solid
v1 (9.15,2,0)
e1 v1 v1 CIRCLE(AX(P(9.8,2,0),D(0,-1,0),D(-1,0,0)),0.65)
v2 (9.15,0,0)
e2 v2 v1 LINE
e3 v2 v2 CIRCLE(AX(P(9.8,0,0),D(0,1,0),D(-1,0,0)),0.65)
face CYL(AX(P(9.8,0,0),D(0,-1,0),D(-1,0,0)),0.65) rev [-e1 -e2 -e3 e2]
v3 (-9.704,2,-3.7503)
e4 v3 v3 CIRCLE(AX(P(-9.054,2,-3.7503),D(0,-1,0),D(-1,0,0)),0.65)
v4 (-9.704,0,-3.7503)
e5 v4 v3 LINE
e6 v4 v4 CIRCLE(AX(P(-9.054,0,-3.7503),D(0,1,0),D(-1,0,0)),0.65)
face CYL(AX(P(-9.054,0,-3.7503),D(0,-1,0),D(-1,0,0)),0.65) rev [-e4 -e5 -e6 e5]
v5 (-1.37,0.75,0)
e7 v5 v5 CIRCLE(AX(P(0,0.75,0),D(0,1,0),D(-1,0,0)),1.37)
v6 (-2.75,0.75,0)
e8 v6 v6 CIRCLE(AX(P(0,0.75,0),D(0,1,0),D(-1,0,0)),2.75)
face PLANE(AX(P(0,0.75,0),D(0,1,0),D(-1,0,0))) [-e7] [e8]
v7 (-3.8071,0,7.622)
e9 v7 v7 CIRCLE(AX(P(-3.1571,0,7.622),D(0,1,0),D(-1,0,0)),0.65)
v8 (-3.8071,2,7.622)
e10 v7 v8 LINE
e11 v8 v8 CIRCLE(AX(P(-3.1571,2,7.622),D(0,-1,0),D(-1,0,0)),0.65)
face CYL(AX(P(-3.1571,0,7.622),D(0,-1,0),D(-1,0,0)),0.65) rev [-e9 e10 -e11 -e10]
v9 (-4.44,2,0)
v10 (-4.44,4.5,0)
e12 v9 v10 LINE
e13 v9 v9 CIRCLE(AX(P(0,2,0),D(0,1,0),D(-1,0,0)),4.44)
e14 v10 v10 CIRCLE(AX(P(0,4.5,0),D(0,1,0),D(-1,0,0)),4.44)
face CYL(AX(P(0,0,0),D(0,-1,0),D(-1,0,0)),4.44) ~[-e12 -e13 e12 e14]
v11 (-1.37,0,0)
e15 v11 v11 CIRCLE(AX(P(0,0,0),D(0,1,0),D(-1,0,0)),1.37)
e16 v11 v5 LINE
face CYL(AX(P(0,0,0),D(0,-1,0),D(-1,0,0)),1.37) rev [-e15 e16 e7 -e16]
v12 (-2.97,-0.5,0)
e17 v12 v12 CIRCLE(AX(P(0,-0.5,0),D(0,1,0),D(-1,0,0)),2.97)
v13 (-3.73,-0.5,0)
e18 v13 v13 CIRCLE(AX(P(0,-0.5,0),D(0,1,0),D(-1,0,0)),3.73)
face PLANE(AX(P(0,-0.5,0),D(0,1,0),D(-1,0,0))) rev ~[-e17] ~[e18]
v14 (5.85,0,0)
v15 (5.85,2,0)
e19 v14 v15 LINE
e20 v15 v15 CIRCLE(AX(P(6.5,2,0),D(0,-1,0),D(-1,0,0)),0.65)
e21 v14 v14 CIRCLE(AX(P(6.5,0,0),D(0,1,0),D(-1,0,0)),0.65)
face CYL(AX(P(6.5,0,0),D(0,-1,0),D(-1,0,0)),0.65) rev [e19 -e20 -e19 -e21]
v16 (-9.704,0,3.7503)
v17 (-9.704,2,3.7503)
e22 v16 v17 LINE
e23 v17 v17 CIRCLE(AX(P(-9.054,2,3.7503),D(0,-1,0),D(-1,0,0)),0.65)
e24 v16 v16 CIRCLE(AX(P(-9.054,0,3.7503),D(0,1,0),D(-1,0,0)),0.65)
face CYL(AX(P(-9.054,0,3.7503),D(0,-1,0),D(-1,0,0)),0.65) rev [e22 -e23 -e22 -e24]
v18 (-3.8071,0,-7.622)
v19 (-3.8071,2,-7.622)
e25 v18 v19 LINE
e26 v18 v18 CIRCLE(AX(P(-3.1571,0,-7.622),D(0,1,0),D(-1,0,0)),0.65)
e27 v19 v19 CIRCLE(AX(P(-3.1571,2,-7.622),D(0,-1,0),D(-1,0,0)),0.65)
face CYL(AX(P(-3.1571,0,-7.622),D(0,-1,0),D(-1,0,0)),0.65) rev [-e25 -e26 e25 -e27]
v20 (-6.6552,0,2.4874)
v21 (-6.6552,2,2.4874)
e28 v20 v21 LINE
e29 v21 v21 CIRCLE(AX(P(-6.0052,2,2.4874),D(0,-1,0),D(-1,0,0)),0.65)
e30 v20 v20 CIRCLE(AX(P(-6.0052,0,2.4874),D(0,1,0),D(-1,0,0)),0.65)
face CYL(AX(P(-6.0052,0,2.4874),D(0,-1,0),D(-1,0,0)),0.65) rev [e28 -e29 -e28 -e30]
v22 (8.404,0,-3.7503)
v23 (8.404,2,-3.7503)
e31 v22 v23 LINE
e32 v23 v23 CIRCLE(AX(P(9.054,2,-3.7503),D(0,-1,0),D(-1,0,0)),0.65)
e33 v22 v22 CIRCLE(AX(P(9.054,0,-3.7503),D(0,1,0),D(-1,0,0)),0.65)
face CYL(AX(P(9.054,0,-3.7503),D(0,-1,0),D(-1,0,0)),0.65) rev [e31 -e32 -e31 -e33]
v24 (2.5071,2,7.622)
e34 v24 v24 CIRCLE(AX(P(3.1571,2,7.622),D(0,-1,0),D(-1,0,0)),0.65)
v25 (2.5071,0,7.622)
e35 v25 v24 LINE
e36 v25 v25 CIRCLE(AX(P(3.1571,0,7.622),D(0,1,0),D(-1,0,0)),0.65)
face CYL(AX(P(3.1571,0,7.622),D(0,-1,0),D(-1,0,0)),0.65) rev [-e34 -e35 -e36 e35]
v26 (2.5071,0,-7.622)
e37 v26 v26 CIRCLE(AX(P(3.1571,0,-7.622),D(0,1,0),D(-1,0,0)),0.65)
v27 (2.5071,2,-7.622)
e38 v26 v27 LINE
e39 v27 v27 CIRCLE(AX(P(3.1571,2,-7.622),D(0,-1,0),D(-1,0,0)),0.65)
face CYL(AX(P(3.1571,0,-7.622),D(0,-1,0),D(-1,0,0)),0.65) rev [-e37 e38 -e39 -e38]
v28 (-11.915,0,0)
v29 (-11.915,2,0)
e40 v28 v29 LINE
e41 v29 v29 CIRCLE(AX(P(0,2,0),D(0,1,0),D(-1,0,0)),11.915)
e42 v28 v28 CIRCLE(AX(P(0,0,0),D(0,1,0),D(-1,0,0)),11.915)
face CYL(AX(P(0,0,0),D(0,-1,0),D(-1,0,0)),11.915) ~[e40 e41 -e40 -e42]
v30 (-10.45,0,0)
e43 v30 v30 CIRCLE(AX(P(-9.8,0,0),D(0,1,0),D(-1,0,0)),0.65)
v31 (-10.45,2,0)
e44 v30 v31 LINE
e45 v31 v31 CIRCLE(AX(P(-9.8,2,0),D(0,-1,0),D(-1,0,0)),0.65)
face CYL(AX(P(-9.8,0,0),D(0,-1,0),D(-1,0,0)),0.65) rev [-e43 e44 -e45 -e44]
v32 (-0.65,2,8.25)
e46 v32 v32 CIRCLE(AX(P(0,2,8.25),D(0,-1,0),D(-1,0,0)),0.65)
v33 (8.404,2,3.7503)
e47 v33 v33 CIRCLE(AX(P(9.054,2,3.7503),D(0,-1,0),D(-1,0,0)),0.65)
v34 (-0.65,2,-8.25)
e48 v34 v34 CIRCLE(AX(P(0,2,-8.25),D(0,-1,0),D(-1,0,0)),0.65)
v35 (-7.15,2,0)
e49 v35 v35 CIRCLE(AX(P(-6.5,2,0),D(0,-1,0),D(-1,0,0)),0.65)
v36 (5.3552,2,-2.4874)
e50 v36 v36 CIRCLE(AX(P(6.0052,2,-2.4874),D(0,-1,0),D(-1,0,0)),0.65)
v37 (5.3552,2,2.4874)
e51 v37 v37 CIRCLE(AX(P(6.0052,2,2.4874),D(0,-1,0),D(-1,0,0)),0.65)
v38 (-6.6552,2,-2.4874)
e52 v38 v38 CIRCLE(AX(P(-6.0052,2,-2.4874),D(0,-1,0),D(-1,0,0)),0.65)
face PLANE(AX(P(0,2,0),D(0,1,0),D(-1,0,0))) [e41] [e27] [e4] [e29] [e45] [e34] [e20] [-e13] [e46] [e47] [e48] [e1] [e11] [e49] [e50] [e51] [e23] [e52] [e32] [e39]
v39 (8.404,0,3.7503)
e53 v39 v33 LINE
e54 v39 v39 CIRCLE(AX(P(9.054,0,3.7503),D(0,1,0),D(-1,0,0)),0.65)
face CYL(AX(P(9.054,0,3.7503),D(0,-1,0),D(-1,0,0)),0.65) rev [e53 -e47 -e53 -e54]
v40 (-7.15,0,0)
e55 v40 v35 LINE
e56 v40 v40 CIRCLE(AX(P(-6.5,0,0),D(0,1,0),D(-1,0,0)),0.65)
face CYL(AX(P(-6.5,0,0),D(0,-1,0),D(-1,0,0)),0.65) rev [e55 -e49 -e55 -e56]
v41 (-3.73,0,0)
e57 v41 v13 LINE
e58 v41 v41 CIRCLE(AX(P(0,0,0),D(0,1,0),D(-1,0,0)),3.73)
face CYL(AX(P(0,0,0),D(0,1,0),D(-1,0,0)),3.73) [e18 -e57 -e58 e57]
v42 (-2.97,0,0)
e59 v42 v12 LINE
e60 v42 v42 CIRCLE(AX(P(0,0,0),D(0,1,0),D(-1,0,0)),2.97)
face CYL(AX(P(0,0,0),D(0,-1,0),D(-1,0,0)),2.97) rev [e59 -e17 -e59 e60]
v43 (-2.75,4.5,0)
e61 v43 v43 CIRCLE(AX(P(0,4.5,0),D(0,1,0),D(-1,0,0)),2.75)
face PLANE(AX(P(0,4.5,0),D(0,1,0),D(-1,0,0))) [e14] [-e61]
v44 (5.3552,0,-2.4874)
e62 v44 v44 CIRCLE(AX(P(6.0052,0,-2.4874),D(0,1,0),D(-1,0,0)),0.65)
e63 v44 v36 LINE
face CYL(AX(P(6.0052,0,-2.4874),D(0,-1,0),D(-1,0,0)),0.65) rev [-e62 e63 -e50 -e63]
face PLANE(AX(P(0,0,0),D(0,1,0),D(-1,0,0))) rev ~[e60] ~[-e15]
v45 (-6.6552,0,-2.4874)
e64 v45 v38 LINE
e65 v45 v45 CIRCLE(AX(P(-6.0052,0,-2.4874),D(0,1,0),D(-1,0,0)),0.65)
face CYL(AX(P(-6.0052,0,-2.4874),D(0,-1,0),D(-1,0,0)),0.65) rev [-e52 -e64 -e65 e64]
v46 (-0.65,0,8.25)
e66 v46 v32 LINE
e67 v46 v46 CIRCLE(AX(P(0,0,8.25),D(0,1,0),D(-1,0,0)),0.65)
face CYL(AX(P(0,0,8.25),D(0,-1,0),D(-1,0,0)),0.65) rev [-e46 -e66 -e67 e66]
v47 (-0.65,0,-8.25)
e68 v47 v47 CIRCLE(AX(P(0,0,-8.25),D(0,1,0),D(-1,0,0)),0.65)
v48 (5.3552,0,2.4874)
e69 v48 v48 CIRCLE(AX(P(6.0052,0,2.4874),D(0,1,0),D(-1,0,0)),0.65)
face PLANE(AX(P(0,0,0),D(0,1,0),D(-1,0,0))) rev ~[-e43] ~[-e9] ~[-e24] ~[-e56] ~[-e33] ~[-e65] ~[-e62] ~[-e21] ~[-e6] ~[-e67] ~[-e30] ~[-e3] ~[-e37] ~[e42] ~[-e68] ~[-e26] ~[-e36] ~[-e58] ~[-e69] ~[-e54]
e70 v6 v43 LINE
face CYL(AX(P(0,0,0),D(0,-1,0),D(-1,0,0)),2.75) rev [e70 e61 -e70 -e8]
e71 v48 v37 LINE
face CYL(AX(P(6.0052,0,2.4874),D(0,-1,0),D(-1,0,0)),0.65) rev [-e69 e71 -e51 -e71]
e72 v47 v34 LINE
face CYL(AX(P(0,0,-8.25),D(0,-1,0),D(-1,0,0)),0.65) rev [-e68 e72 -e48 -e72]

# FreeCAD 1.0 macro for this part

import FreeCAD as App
import Part
import Sketcher

V = App.Vector

doc = App.newDocument("Part")
body = doc.addObject("PartDesign::Body", "Body")

# Sketch on XZ plane
sketch1 = body.newObject("Sketcher::SketchObject", "Sketch")
sketch1.AttachmentSupport = (doc.getObject("XZ_Plane"), [""])
sketch1.MapMode = "FlatFace"
sketch1.addGeometry(Part.Circle(V(0, 0, 0), V(0, 0, 1), 11.9), False)
sketch1.addGeometry(Part.Circle(V(-9.1, 3.8, 0), V(0, 0, 1), 0.7), False)
sketch1.addGeometry(Part.Circle(V(9.1, 3.8, 0), V(0, 0, 1), 0.7), False)
sketch1.addGeometry(Part.Circle(V(9.8, 0, 0), V(0, 0, 1), 0.7), False)
sketch1.addGeometry(Part.Circle(V(9.1, -3.8, 0), V(0, 0, 1), 0.7), False)
sketch1.addGeometry(Part.Circle(V(-9.1, -3.8, 0), V(0, 0, 1), 0.7), False)
sketch1.addGeometry(Part.Circle(V(-9.8, 0, 0), V(0, 0, 1), 0.7), False)
sketch1.addGeometry(Part.Circle(V(0, -8.2, 0), V(0, 0, 1), 0.7), False)
sketch1.addGeometry(Part.Circle(V(-3.2, -7.6, 0), V(0, 0, 1), 0.7), False)
sketch1.addGeometry(Part.Circle(V(-3.2, 7.6, 0), V(0, 0, 1), 0.7), False)
sketch1.addGeometry(Part.Circle(V(0, 8.2, 0), V(0, 0, 1), 0.7), False)
sketch1.addGeometry(Part.Circle(V(3.2, 7.6, 0), V(0, 0, 1), 0.7), False)
sketch1.addGeometry(Part.Circle(V(3.2, -7.6, 0), V(0, 0, 1), 0.7), False)
sketch1.addGeometry(Part.Circle(V(-6.5, 0, 0), V(0, 0, 1), 0.7), False)
sketch1.addGeometry(Part.Circle(V(6, -2.5, 0), V(0, 0, 1), 0.7), False)
sketch1.addGeometry(Part.Circle(V(-6, -2.5, 0), V(0, 0, 1), 0.7), False)
sketch1.addGeometry(Part.Circle(V(-6, 2.5, 0), V(0, 0, 1), 0.7), False)
sketch1.addGeometry(Part.Circle(V(6, 2.5, 0), V(0, 0, 1), 0.7), False)
sketch1.addGeometry(Part.Circle(V(6.5, 0, 0), V(0, 0, 1), 0.7), False)
sketch1.addGeometry(Part.Circle(V(0, 0, 0), V(0, 0, 1), 4.4), False)
sketch1.addConstraint(Sketcher.Constraint("Coincident", 0, 3, -1, 1))
sketch1.addConstraint(Sketcher.Constraint("Coincident", 19, 3, -1, 1))
sketch1.addConstraint(Sketcher.Constraint("Equal", 1, 2))
sketch1.addConstraint(Sketcher.Constraint("Equal", 2, 3))
sketch1.addConstraint(Sketcher.Constraint("Equal", 3, 4))
sketch1.addConstraint(Sketcher.Constraint("Equal", 4, 5))
sketch1.addConstraint(Sketcher.Constraint("Equal", 5, 6))
sketch1.addConstraint(Sketcher.Constraint("Equal", 6, 7))
sketch1.addConstraint(Sketcher.Constraint("Equal", 7, 8))
sketch1.addConstraint(Sketcher.Constraint("Equal", 8, 9))
sketch1.addConstraint(Sketcher.Constraint("Equal", 9, 10))
sketch1.addConstraint(Sketcher.Constraint("Equal", 10, 11))
sketch1.addConstraint(Sketcher.Constraint("Equal", 11, 12))
sketch1.addConstraint(Sketcher.Constraint("Equal", 12, 13))
sketch1.addConstraint(Sketcher.Constraint("Equal", 13, 14))
sketch1.addConstraint(Sketcher.Constraint("Equal", 14, 15))
sketch1.addConstraint(Sketcher.Constraint("Equal", 15, 16))
sketch1.addConstraint(Sketcher.Constraint("Equal", 16, 17))
sketch1.addConstraint(Sketcher.Constraint("Equal", 17, 18))
sketch1.addConstraint(Sketcher.Constraint("Symmetric", 1, 3, 4, 3, -1, 1))
sketch1.addConstraint(Sketcher.Constraint("Symmetric", 2, 3, 5, 3, -1, 1))
sketch1.addConstraint(Sketcher.Constraint("Symmetric", 3, 3, 6, 3, -1, 1))
sketch1.addConstraint(Sketcher.Constraint("Symmetric", 7, 3, 10, 3, -1, 1))
sketch1.addConstraint(Sketcher.Constraint("Symmetric", 8, 3, 11, 3, -1, 1))
sketch1.addConstraint(Sketcher.Constraint("Symmetric", 9, 3, 12, 3, -1, 1))
sketch1.addConstraint(Sketcher.Constraint("Symmetric", 14, 3, 16, 3, -1, 1))
sketch1.addConstraint(Sketcher.Constraint("Symmetric", 15, 3, 17, 3, -1, 1))
sketch1.addConstraint(Sketcher.Constraint("Symmetric", 13, 3, 18, 3, -1, 1))
sketch1.addConstraint(Sketcher.Constraint("Symmetric", 1, 3, 2, 3, -2))
sketch1.addConstraint(Sketcher.Constraint("Symmetric", 9, 3, 11, 3, -2))
sketch1.addConstraint(Sketcher.Constraint("Symmetric", 14, 3, 15, 3, -2))
sketch1.addConstraint(Sketcher.Constraint("PointOnObject", 3, 3, -1))
sketch1.addConstraint(Sketcher.Constraint("PointOnObject", 7, 3, -2))
sketch1.addConstraint(Sketcher.Constraint("PointOnObject", 13, 3, -1))
sketch1.addConstraint(Sketcher.Constraint("Diameter", 1, 1.3))
sketch1.addConstraint(Sketcher.Constraint("Diameter", 0, 23.83))
sketch1.addConstraint(Sketcher.Constraint("Diameter", 19, 8.88))
sketch1.addConstraint(Sketcher.Constraint("DistanceX", -1, 1, 3, 3, 9.8))
sketch1.addConstraint(Sketcher.Constraint("DistanceX", 13, 3, -1, 1, 6.5))
sketch1.addConstraint(Sketcher.Constraint("DistanceY", 7, 3, -1, 1, 8.25))
sketch1.addConstraint(Sketcher.Constraint("DistanceX", 1, 3, -1, 1, 9.054))
sketch1.addConstraint(Sketcher.Constraint("DistanceX", 8, 3, -1, 1, 3.157))
sketch1.addConstraint(Sketcher.Constraint("DistanceY", 8, 3, -1, 1, 7.622))
sketch1.addConstraint(Sketcher.Constraint("DistanceY", 4, 3, 14, 3, 1.263))
sketch1.addConstraint(Sketcher.Constraint("DistanceX", 12, 3, 14, 3, 2.848))
sketch1.addConstraint(Sketcher.Constraint("DistanceY", -1, 1, 1, 3, 3.7503))
pad1 = body.newObject("PartDesign::Pad", "Pad")
pad1.Profile = sketch1
pad1.Length = 2
pad1.Reversed = True

# Sketch on XZ plane
sketch2 = body.newObject("Sketcher::SketchObject", "Sketch001")
sketch2.AttachmentSupport = (doc.getObject("XZ_Plane"), [""])
sketch2.MapMode = "FlatFace"
sketch2.addGeometry(Part.Circle(V(0, 0, 0), V(0, 0, 1), 4.4), False)
sketch2.addGeometry(Part.Circle(V(0, 0, 0), V(0, 0, 1), 3.7), False)
sketch2.addConstraint(Sketcher.Constraint("Coincident", 0, 3, -1, 1))
sketch2.addConstraint(Sketcher.Constraint("Coincident", 1, 3, -1, 1))
sketch2.addConstraint(Sketcher.Constraint("Diameter", 0, 8.88))
sketch2.addConstraint(Sketcher.Constraint("Diameter", 1, 7.46))
pad2 = body.newObject("PartDesign::Pad", "Pad001")
pad2.Profile = sketch2
pad2.Length = 4.5
pad2.Reversed = True

# Sketch on XZ plane
sketch3 = body.newObject("Sketcher::SketchObject", "Sketch002")
sketch3.AttachmentSupport = (doc.getObject("XZ_Plane"), [""])
sketch3.MapMode = "FlatFace"
sketch3.addGeometry(Part.Circle(V(0, 0, 0), V(0, 0, 1), 3.7), False)
sketch3.addGeometry(Part.Circle(V(0, 0, 0), V(0, 0, 1), 3), False)
sketch3.addConstraint(Sketcher.Constraint("Coincident", 0, 3, -1, 1))
sketch3.addConstraint(Sketcher.Constraint("Coincident", 1, 3, -1, 1))
sketch3.addConstraint(Sketcher.Constraint("Diameter", 0, 7.46))
sketch3.addConstraint(Sketcher.Constraint("Diameter", 1, 5.94))
pad3 = body.newObject("PartDesign::Pad", "Pad002")
pad3.Profile = sketch3
pad3.Type = "TwoLengths"
pad3.Length = 4.5
pad3.Length2 = 0.5
pad3.Reversed = True

# Sketch on XZ plane
sketch4 = body.newObject("Sketcher::SketchObject", "Sketch003")
sketch4.AttachmentSupport = (doc.getObject("XZ_Plane"), [""])
sketch4.MapMode = "FlatFace"
sketch4.addGeometry(Part.Circle(V(0, 0, 0), V(0, 0, 1), 3), False)
sketch4.addGeometry(Part.Circle(V(0, 0, 0), V(0, 0, 1), 2.8), False)
sketch4.addConstraint(Sketcher.Constraint("Coincident", 0, 3, -1, 1))
sketch4.addConstraint(Sketcher.Constraint("Coincident", 1, 3, -1, 1))
sketch4.addConstraint(Sketcher.Constraint("Diameter", 1, 5.5))
sketch4.addConstraint(Sketcher.Constraint("Diameter", 0, 5.94))
pad4 = body.newObject("PartDesign::Pad", "Pad003")
pad4.Profile = sketch4
pad4.Length = 4.5
pad4.Reversed = True

# Sketch on XZ plane
sketch5 = body.newObject("Sketcher::SketchObject", "Sketch004")
sketch5.AttachmentSupport = (doc.getObject("XZ_Plane"), [""])
sketch5.MapMode = "FlatFace"
sketch5.addGeometry(Part.Circle(V(0, 0, 0), V(0, 0, 1), 2.8), False)
sketch5.addGeometry(Part.Circle(V(0, 0, 0), V(0, 0, 1), 1.4), False)
sketch5.addConstraint(Sketcher.Constraint("Coincident", 0, 3, -1, 1))
sketch5.addConstraint(Sketcher.Constraint("Coincident", 1, 3, -1, 1))
sketch5.addConstraint(Sketcher.Constraint("Diameter", 0, 5.5))
sketch5.addConstraint(Sketcher.Constraint("Diameter", 1, 2.74))
pad5 = body.newObject("PartDesign::Pad", "Pad004")
pad5.Profile = sketch5
pad5.Length = 0.75
pad5.Reversed = True

doc.recompute()
